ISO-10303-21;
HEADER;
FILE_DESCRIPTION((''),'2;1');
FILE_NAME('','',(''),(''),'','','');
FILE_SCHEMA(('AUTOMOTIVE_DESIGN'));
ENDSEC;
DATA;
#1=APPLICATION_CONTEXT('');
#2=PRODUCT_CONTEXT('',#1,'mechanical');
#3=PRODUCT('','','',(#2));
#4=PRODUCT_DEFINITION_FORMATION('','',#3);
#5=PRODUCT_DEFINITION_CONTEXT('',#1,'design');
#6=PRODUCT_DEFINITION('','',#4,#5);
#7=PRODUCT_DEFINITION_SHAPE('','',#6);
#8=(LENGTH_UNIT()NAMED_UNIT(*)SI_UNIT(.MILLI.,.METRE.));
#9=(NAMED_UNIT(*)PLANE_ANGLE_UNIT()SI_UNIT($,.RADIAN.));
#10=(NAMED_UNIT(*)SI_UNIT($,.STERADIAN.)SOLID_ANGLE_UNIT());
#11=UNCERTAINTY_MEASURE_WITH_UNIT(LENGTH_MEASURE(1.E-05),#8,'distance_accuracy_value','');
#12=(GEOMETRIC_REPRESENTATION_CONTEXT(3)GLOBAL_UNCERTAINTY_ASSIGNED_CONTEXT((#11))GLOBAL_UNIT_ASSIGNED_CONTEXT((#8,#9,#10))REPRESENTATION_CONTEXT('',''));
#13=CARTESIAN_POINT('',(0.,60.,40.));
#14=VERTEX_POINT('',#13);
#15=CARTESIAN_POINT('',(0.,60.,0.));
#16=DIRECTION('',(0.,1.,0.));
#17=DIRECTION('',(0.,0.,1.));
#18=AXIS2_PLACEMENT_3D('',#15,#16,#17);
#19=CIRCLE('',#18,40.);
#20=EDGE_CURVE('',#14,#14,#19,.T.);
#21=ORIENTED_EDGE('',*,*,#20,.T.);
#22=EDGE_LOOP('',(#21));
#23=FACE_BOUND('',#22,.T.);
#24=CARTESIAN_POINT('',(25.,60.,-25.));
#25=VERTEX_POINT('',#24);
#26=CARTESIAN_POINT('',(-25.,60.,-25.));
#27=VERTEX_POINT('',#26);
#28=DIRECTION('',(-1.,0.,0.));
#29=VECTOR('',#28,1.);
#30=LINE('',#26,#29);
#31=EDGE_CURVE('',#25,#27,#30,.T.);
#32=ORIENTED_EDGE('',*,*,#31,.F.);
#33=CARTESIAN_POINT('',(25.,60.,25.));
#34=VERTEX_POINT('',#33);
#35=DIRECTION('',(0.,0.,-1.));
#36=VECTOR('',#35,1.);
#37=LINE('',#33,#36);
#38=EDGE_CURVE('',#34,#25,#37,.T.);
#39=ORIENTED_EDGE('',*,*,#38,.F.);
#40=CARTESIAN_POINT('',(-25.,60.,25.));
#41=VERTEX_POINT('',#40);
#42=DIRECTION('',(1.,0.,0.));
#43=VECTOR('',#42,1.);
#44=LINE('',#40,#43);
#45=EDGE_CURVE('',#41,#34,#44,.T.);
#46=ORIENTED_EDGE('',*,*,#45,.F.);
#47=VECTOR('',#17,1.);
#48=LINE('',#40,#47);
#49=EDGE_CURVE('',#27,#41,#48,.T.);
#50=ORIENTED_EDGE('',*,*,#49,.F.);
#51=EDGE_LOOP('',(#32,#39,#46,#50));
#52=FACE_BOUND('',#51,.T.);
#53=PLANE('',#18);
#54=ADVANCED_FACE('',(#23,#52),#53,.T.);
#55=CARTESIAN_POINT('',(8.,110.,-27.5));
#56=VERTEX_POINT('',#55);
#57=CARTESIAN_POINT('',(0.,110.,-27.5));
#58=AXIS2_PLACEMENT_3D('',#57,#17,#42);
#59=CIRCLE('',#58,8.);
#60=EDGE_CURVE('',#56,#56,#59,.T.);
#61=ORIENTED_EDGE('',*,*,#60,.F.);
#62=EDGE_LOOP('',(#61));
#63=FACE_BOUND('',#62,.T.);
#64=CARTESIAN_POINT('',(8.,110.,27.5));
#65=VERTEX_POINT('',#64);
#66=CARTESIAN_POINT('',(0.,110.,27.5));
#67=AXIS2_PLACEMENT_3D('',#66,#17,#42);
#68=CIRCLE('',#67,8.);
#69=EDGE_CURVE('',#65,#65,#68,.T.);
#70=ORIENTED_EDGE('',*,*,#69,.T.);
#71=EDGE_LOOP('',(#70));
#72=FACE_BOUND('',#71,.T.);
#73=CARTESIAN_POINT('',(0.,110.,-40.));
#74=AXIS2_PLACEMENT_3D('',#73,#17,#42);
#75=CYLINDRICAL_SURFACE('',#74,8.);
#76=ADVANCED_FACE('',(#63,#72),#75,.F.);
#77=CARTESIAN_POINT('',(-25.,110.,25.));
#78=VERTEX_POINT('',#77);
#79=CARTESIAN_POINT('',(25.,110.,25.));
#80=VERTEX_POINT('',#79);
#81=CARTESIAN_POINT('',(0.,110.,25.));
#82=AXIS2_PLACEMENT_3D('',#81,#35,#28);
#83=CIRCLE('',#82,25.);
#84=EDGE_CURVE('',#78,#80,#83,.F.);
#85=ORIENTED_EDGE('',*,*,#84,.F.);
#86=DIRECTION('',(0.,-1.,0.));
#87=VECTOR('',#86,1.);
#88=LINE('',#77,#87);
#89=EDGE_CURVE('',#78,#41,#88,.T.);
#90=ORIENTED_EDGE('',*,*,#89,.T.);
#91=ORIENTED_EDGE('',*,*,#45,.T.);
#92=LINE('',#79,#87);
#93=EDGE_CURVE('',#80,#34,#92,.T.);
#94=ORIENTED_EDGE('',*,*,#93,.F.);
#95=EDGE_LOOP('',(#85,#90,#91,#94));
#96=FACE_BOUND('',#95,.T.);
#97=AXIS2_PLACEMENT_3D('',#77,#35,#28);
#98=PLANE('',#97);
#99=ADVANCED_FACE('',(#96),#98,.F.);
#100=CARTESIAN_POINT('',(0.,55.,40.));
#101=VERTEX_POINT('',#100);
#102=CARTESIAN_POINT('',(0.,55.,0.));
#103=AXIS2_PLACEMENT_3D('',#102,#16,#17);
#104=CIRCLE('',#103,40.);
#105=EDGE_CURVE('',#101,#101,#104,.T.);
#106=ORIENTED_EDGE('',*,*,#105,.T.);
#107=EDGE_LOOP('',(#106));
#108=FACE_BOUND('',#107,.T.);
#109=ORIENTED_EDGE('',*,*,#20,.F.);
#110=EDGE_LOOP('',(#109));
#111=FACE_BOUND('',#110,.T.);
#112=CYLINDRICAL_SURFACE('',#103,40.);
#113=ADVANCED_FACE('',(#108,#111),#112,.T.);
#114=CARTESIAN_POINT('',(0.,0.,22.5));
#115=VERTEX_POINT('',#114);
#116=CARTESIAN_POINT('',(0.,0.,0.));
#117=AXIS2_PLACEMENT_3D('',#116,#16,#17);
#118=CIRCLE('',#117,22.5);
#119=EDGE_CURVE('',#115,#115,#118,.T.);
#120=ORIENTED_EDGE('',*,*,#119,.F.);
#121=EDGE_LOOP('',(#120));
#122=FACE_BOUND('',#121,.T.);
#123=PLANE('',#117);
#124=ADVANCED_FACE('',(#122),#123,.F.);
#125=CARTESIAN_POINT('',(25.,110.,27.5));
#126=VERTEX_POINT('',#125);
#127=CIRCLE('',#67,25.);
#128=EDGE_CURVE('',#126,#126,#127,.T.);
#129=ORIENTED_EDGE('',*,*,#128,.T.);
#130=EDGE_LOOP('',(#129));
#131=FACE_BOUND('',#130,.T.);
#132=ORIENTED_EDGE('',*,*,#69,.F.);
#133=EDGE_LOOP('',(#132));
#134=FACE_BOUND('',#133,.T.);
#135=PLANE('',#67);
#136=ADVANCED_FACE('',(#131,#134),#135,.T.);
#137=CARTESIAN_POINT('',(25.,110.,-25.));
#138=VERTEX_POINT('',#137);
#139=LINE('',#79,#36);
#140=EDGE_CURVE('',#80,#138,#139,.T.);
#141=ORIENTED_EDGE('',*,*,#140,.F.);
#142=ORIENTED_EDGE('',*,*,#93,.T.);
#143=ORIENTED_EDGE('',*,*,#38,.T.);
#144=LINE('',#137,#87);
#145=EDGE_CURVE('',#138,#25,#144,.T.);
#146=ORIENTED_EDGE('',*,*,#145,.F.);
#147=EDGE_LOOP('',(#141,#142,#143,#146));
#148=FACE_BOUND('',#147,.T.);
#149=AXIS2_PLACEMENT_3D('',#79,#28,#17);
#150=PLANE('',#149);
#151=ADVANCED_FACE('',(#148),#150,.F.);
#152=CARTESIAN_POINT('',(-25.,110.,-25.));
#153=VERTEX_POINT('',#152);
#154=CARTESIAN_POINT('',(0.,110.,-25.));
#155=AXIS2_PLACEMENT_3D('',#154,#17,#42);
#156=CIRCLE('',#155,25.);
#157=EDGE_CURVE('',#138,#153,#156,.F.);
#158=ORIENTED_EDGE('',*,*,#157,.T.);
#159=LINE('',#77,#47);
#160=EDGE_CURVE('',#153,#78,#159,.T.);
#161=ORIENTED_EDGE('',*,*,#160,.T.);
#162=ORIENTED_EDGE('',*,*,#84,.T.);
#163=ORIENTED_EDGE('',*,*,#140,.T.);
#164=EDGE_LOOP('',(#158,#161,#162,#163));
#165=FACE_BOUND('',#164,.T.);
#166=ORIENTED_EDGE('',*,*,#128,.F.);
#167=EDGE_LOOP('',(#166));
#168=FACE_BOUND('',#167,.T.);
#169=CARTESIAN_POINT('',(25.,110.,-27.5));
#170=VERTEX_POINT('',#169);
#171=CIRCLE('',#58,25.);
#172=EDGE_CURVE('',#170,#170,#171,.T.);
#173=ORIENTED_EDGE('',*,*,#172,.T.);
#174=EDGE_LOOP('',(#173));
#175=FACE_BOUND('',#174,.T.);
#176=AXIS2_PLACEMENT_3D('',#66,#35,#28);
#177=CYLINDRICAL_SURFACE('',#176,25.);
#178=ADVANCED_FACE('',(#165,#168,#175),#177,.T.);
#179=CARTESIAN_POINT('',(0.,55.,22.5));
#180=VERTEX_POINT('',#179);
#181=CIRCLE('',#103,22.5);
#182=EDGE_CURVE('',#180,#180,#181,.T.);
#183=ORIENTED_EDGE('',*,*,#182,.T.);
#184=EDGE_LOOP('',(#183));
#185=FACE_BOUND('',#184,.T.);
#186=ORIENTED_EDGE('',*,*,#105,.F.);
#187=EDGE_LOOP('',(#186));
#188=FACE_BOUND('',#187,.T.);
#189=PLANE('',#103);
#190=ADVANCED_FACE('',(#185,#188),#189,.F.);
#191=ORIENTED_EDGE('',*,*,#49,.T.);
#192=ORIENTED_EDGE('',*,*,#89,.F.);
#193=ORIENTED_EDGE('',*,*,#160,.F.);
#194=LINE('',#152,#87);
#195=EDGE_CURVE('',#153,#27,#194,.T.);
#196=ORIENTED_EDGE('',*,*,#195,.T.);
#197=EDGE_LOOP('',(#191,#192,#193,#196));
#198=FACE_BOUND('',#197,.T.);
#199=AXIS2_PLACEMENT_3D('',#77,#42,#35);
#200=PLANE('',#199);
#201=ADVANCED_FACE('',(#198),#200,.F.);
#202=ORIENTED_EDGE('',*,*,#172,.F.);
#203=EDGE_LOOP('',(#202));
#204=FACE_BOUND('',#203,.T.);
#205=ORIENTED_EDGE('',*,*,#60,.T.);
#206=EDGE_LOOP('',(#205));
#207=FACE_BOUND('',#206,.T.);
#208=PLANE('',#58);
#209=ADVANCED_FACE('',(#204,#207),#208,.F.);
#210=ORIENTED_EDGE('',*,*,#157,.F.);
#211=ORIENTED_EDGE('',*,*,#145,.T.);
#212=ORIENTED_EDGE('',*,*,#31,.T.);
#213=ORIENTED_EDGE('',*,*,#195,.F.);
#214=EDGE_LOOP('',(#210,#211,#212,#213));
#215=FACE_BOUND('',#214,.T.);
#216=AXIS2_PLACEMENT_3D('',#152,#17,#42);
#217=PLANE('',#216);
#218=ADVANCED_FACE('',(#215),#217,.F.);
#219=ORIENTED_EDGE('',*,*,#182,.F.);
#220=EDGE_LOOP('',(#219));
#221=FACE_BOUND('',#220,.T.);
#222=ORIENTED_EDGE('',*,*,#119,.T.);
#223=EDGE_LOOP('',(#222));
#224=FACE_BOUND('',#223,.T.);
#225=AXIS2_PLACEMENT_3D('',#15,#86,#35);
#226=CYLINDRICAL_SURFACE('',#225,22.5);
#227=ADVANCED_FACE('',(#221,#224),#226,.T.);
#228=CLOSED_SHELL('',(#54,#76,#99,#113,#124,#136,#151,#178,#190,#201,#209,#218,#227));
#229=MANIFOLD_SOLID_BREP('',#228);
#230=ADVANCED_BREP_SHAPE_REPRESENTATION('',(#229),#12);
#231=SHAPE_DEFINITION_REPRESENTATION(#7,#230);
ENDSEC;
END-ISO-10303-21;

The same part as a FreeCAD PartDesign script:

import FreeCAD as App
import Part
import Sketcher
Q = App.Units.Quantity


def add_polygon(sketch, points):
    """Adds a closed chain of lines whose ends are joined by coincident constraints."""
    first, n = sketch.GeometryCount, len(points)
    for a, b in zip(points, points[1:] + points[:1]):
        sketch.addGeometry(Part.LineSegment(App.Vector(*a, 0), App.Vector(*b, 0)), False)
    for i in range(n):
        sketch.addConstraint(Sketcher.Constraint("Coincident", first + i, 2, first + (i + 1) % n, 1))

doc = App.newDocument("Part")
params = doc.addObject("Spreadsheet::Sheet", "Params")
for row, (alias, value) in enumerate([
    ("sketch1_diameter", "45 mm"),
    ("pad1_length", "60 mm"),
    ("sketch2_diameter", "80 mm"),
    ("sketch2_diameter2", "45 mm"),
    ("pad2_length", "5 mm"),
    ("sketch3_width", "50 mm"),
    ("pad3_length", "50 mm"),
    ("sketch4_diameter", "50 mm"),
    ("pad4_length", "55 mm"),
    ("sketch5_diameter", "16 mm"),
], start=1):
    params.set(f"A{row}", alias)
    params.set(f"B{row}", "=" + value)
    params.setAlias(f"B{row}", alias)

body = doc.addObject("PartDesign::Body", "Body")

# Sketch on XZ plane
sketch1 = body.newObject("Sketcher::SketchObject", "Sketch")
sketch1.AttachmentSupport = (doc.getObject("XZ_Plane"), [""])
sketch1.MapMode = "FlatFace"
sketch1.addGeometry(Part.Circle(App.Vector(0, 0, 0), App.Vector(0, 0, 1), 22), False)
sketch1.addConstraint(Sketcher.Constraint("Coincident", 0, 3, -1, 1))
sketch1.addConstraint(Sketcher.Constraint("Diameter", 0, Q("45 mm")))
sketch1.setExpression("Constraints[1]", "Params.sketch1_diameter")
pad1 = body.newObject("PartDesign::Pad", "Pad")
pad1.Profile = sketch1
pad1.setExpression("Length", "Params.pad1_length")
pad1.Reversed = True

# Sketch on XZ plane
sketch2 = body.newObject("Sketcher::SketchObject", "Sketch001")
sketch2.AttachmentSupport = (doc.getObject("XZ_Plane"), [""])
sketch2.MapMode = "FlatFace"
sketch2.AttachmentOffset = App.Placement(App.Vector(0, 0, -60), App.Rotation())
sketch2.addGeometry(Part.Circle(App.Vector(0, 0, 0), App.Vector(0, 0, 1), 40), False)
sketch2.addGeometry(Part.Circle(App.Vector(0, 0, 0), App.Vector(0, 0, 1), 22), False)
sketch2.addConstraint(Sketcher.Constraint("Coincident", 0, 3, -1, 1))
sketch2.addConstraint(Sketcher.Constraint("Coincident", 1, 3, -1, 1))
sketch2.addConstraint(Sketcher.Constraint("Diameter", 0, Q("80 mm")))
sketch2.addConstraint(Sketcher.Constraint("Diameter", 1, Q("45 mm")))
sketch2.setExpression("Constraints[2]", "Params.sketch2_diameter")
sketch2.setExpression("Constraints[3]", "Params.sketch2_diameter2")
pad2 = body.newObject("PartDesign::Pad", "Pad001")
pad2.Profile = sketch2
pad2.setExpression("Length", "Params.pad2_length")

# Sketch on XZ plane
sketch3 = body.newObject("Sketcher::SketchObject", "Sketch002")
sketch3.AttachmentSupport = (doc.getObject("XZ_Plane"), [""])
sketch3.MapMode = "FlatFace"
sketch3.AttachmentOffset = App.Placement(App.Vector(0, 0, -60), App.Rotation())
add_polygon(sketch3, [(-25, -25), (-25, 25), (25, 25), (25, -25)])  # lines 0-3
sketch3.addConstraint(Sketcher.Constraint("Vertical", 0))
sketch3.addConstraint(Sketcher.Constraint("Horizontal", 1))
sketch3.addConstraint(Sketcher.Constraint("Vertical", 2))
sketch3.addConstraint(Sketcher.Constraint("Horizontal", 3))
sketch3.addConstraint(Sketcher.Constraint("Symmetric", 0, 2, 2, 2, -1, 1))
sketch3.addConstraint(Sketcher.Constraint("Equal", 3, 0))
sketch3.addConstraint(Sketcher.Constraint("DistanceX", 1, 1, 1, 2, Q("50 mm")))
sketch3.setExpression("Constraints[10]", "Params.sketch3_width")
pad3 = body.newObject("PartDesign::Pad", "Pad002")
pad3.Profile = sketch3
pad3.setExpression("Length", "Params.pad3_length")
pad3.Reversed = True

# Sketch on XY plane
sketch4 = body.newObject("Sketcher::SketchObject", "Sketch003")
sketch4.AttachmentSupport = (doc.getObject("XY_Plane"), [""])
sketch4.MapMode = "FlatFace"
sketch4.addGeometry(Part.Circle(App.Vector(0, 110, 0), App.Vector(0, 0, 1), 25), False)
sketch4.addConstraint(Sketcher.Constraint("PointOnObject", 0, 3, -2))
sketch4.addConstraint(Sketcher.Constraint("Diameter", 0, Q("50 mm")))
sketch4.addConstraint(Sketcher.Constraint("DistanceY", -1, 1, 0, 3, Q("110 mm")))
sketch4.setExpression("Constraints[1]", "Params.sketch4_diameter")
pad4 = body.newObject("PartDesign::Pad", "Pad003")
pad4.Profile = sketch4
pad4.setExpression("Length", "Params.pad4_length")
pad4.Midplane = True

# Sketch on XY plane
sketch5 = body.newObject("Sketcher::SketchObject", "Sketch004")
sketch5.AttachmentSupport = (doc.getObject("XY_Plane"), [""])
sketch5.MapMode = "FlatFace"
sketch5.AttachmentOffset = App.Placement(App.Vector(0, 0, 27.5), App.Rotation())
sketch5.addGeometry(Part.Circle(App.Vector(0, 110, 0), App.Vector(0, 0, 1), 8), False)
sketch5.addConstraint(Sketcher.Constraint("PointOnObject", 0, 3, -2))
sketch5.addConstraint(Sketcher.Constraint("Diameter", 0, Q("16 mm")))
sketch5.addConstraint(Sketcher.Constraint("DistanceY", -1, 1, 0, 3, Q("110 mm")))
sketch5.setExpression("Constraints[1]", "Params.sketch5_diameter")
pocket1 = body.newObject("PartDesign::Pocket", "Pocket")
pocket1.Profile = sketch5
pocket1.Type = "ThroughAll"

doc.recompute()
